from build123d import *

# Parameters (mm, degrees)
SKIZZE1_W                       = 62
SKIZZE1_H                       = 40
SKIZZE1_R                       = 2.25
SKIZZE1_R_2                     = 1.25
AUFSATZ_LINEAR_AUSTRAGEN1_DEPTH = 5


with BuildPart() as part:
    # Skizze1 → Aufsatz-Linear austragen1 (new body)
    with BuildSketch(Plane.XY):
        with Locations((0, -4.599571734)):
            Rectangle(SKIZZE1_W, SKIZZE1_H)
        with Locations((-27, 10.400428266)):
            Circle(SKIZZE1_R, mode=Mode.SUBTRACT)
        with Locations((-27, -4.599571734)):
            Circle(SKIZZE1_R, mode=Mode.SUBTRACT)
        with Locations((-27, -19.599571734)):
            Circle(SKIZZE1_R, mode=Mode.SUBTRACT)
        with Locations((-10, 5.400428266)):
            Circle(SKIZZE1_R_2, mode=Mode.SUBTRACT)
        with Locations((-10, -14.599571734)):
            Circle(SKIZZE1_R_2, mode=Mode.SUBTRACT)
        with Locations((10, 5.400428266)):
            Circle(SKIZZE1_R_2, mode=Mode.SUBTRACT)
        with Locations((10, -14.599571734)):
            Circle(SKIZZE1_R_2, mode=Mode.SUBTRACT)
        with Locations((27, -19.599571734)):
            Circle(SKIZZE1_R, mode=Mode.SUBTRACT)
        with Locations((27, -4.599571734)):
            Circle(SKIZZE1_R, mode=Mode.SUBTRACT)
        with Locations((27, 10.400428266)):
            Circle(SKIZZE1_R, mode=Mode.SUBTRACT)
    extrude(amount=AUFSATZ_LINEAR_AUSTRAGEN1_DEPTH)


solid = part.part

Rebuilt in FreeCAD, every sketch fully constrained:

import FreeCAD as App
import Part
import Sketcher
Q = App.Units.Quantity


def add_polygon(sketch, points):
    """Adds a closed chain of lines whose ends are joined by coincident constraints."""
    first, n = sketch.GeometryCount, len(points)
    for a, b in zip(points, points[1:] + points[:1]):
        sketch.addGeometry(Part.LineSegment(App.Vector(*a, 0), App.Vector(*b, 0)), False)
    for i in range(n):
        sketch.addConstraint(Sketcher.Constraint("Coincident", first + i, 2, first + (i + 1) % n, 1))

doc = App.newDocument("Part")
body = doc.addObject("PartDesign::Body", "Body")

# Sketch on XY plane
sketch1 = body.newObject("Sketcher::SketchObject", "Sketch")
sketch1.AttachmentSupport = (doc.getObject("XY_Plane"), [""])
sketch1.MapMode = "FlatFace"
add_polygon(sketch1, [(-31, 15.4), (-31, -24.6), (31, -24.6), (31, 15.4)])  # lines 0-3
sketch1.addGeometry(Part.Circle(App.Vector(-27, -19.6, 0), App.Vector(0, 0, 1), 2.2), False)  # 4
sketch1.addGeometry(Part.Circle(App.Vector(-10, -14.6, 0), App.Vector(0, 0, 1), 1.2), False)  # 5
sketch1.addGeometry(Part.Circle(App.Vector(10, -14.6, 0), App.Vector(0, 0, 1), 1.2), False)  # 6
sketch1.addGeometry(Part.Circle(App.Vector(27, -19.6, 0), App.Vector(0, 0, 1), 2.2), False)  # 7
sketch1.addGeometry(Part.Circle(App.Vector(-27, -4.6, 0), App.Vector(0, 0, 1), 2.2), False)  # 8
sketch1.addGeometry(Part.Circle(App.Vector(-27, 10.4, 0), App.Vector(0, 0, 1), 2.2), False)  # 9
sketch1.addGeometry(Part.Circle(App.Vector(-10, 5.4, 0), App.Vector(0, 0, 1), 1.2), False)  # 10
sketch1.addGeometry(Part.Circle(App.Vector(27, -4.6, 0), App.Vector(0, 0, 1), 2.2), False)  # 11
sketch1.addGeometry(Part.Circle(App.Vector(10, 5.4, 0), App.Vector(0, 0, 1), 1.2), False)  # 12
sketch1.addGeometry(Part.Circle(App.Vector(27, 10.4, 0), App.Vector(0, 0, 1), 2.2), False)  # 13
sketch1.addConstraint([
    Sketcher.Constraint("Vertical", 0),
    Sketcher.Constraint("Horizontal", 1),
    Sketcher.Constraint("Vertical", 2),
    Sketcher.Constraint("Horizontal", 3),
    Sketcher.Constraint("Equal", 5, 6),
    Sketcher.Constraint("Equal", 4, 7),
    Sketcher.Constraint("Equal", 7, 8),
    Sketcher.Constraint("Equal", 8, 9),
    Sketcher.Constraint("Equal", 6, 10),
    Sketcher.Constraint("Equal", 9, 11),
    Sketcher.Constraint("Equal", 10, 12),
    Sketcher.Constraint("Equal", 11, 13),
    Sketcher.Constraint("Symmetric", 5, 3, 6, 3, -2),
    Sketcher.Constraint("Symmetric", 4, 3, 7, 3, -2),
    Sketcher.Constraint("Symmetric", 8, 3, 11, 3, -2),
    Sketcher.Constraint("Symmetric", 10, 3, 12, 3, -2),
    Sketcher.Constraint("Symmetric", 9, 3, 13, 3, -2),
    Sketcher.Constraint("Vertical", 4, 3, 8, 3),
    Sketcher.Constraint("Vertical", 8, 3, 9, 3),
    Sketcher.Constraint("Vertical", 5, 3, 10, 3),
    Sketcher.Constraint("Diameter", 4, Q("4.5 mm")),
    Sketcher.Constraint("Diameter", 5, Q("2.5 mm")),
    Sketcher.Constraint("DistanceX", 1, 1, 1, 2, Q("62 mm")),
    Sketcher.Constraint("DistanceY", 0, 2, 0, 1, Q("40 mm")),
    Sketcher.Constraint("DistanceX", 4, 3, -1, 1, Q("27 mm")),
    Sketcher.Constraint("DistanceX", 5, 3, -1, 1, Q("10 mm")),
    Sketcher.Constraint("DistanceX", 0, 2, -1, 1, Q("31 mm")),
    Sketcher.Constraint("DistanceY", 4, 3, 5, 3, Q("5 mm")),
    Sketcher.Constraint("DistanceY", 4, 3, 8, 3, Q("15 mm")),
    Sketcher.Constraint("DistanceY", 8, 3, 9, 3, Q("15 mm")),
    Sketcher.Constraint("DistanceY", 10, 3, 9, 3, Q("5 mm")),
    Sketcher.Constraint("DistanceY", 0, 2, 4, 3, Q("5 mm")),
    Sketcher.Constraint("DistanceY", 4, 3, -1, 1, Q("19.599572 mm")),
])
pad1 = body.newObject("PartDesign::Pad", "Pad")
pad1.Profile = sketch1
pad1.Length = 5

doc.recompute()
